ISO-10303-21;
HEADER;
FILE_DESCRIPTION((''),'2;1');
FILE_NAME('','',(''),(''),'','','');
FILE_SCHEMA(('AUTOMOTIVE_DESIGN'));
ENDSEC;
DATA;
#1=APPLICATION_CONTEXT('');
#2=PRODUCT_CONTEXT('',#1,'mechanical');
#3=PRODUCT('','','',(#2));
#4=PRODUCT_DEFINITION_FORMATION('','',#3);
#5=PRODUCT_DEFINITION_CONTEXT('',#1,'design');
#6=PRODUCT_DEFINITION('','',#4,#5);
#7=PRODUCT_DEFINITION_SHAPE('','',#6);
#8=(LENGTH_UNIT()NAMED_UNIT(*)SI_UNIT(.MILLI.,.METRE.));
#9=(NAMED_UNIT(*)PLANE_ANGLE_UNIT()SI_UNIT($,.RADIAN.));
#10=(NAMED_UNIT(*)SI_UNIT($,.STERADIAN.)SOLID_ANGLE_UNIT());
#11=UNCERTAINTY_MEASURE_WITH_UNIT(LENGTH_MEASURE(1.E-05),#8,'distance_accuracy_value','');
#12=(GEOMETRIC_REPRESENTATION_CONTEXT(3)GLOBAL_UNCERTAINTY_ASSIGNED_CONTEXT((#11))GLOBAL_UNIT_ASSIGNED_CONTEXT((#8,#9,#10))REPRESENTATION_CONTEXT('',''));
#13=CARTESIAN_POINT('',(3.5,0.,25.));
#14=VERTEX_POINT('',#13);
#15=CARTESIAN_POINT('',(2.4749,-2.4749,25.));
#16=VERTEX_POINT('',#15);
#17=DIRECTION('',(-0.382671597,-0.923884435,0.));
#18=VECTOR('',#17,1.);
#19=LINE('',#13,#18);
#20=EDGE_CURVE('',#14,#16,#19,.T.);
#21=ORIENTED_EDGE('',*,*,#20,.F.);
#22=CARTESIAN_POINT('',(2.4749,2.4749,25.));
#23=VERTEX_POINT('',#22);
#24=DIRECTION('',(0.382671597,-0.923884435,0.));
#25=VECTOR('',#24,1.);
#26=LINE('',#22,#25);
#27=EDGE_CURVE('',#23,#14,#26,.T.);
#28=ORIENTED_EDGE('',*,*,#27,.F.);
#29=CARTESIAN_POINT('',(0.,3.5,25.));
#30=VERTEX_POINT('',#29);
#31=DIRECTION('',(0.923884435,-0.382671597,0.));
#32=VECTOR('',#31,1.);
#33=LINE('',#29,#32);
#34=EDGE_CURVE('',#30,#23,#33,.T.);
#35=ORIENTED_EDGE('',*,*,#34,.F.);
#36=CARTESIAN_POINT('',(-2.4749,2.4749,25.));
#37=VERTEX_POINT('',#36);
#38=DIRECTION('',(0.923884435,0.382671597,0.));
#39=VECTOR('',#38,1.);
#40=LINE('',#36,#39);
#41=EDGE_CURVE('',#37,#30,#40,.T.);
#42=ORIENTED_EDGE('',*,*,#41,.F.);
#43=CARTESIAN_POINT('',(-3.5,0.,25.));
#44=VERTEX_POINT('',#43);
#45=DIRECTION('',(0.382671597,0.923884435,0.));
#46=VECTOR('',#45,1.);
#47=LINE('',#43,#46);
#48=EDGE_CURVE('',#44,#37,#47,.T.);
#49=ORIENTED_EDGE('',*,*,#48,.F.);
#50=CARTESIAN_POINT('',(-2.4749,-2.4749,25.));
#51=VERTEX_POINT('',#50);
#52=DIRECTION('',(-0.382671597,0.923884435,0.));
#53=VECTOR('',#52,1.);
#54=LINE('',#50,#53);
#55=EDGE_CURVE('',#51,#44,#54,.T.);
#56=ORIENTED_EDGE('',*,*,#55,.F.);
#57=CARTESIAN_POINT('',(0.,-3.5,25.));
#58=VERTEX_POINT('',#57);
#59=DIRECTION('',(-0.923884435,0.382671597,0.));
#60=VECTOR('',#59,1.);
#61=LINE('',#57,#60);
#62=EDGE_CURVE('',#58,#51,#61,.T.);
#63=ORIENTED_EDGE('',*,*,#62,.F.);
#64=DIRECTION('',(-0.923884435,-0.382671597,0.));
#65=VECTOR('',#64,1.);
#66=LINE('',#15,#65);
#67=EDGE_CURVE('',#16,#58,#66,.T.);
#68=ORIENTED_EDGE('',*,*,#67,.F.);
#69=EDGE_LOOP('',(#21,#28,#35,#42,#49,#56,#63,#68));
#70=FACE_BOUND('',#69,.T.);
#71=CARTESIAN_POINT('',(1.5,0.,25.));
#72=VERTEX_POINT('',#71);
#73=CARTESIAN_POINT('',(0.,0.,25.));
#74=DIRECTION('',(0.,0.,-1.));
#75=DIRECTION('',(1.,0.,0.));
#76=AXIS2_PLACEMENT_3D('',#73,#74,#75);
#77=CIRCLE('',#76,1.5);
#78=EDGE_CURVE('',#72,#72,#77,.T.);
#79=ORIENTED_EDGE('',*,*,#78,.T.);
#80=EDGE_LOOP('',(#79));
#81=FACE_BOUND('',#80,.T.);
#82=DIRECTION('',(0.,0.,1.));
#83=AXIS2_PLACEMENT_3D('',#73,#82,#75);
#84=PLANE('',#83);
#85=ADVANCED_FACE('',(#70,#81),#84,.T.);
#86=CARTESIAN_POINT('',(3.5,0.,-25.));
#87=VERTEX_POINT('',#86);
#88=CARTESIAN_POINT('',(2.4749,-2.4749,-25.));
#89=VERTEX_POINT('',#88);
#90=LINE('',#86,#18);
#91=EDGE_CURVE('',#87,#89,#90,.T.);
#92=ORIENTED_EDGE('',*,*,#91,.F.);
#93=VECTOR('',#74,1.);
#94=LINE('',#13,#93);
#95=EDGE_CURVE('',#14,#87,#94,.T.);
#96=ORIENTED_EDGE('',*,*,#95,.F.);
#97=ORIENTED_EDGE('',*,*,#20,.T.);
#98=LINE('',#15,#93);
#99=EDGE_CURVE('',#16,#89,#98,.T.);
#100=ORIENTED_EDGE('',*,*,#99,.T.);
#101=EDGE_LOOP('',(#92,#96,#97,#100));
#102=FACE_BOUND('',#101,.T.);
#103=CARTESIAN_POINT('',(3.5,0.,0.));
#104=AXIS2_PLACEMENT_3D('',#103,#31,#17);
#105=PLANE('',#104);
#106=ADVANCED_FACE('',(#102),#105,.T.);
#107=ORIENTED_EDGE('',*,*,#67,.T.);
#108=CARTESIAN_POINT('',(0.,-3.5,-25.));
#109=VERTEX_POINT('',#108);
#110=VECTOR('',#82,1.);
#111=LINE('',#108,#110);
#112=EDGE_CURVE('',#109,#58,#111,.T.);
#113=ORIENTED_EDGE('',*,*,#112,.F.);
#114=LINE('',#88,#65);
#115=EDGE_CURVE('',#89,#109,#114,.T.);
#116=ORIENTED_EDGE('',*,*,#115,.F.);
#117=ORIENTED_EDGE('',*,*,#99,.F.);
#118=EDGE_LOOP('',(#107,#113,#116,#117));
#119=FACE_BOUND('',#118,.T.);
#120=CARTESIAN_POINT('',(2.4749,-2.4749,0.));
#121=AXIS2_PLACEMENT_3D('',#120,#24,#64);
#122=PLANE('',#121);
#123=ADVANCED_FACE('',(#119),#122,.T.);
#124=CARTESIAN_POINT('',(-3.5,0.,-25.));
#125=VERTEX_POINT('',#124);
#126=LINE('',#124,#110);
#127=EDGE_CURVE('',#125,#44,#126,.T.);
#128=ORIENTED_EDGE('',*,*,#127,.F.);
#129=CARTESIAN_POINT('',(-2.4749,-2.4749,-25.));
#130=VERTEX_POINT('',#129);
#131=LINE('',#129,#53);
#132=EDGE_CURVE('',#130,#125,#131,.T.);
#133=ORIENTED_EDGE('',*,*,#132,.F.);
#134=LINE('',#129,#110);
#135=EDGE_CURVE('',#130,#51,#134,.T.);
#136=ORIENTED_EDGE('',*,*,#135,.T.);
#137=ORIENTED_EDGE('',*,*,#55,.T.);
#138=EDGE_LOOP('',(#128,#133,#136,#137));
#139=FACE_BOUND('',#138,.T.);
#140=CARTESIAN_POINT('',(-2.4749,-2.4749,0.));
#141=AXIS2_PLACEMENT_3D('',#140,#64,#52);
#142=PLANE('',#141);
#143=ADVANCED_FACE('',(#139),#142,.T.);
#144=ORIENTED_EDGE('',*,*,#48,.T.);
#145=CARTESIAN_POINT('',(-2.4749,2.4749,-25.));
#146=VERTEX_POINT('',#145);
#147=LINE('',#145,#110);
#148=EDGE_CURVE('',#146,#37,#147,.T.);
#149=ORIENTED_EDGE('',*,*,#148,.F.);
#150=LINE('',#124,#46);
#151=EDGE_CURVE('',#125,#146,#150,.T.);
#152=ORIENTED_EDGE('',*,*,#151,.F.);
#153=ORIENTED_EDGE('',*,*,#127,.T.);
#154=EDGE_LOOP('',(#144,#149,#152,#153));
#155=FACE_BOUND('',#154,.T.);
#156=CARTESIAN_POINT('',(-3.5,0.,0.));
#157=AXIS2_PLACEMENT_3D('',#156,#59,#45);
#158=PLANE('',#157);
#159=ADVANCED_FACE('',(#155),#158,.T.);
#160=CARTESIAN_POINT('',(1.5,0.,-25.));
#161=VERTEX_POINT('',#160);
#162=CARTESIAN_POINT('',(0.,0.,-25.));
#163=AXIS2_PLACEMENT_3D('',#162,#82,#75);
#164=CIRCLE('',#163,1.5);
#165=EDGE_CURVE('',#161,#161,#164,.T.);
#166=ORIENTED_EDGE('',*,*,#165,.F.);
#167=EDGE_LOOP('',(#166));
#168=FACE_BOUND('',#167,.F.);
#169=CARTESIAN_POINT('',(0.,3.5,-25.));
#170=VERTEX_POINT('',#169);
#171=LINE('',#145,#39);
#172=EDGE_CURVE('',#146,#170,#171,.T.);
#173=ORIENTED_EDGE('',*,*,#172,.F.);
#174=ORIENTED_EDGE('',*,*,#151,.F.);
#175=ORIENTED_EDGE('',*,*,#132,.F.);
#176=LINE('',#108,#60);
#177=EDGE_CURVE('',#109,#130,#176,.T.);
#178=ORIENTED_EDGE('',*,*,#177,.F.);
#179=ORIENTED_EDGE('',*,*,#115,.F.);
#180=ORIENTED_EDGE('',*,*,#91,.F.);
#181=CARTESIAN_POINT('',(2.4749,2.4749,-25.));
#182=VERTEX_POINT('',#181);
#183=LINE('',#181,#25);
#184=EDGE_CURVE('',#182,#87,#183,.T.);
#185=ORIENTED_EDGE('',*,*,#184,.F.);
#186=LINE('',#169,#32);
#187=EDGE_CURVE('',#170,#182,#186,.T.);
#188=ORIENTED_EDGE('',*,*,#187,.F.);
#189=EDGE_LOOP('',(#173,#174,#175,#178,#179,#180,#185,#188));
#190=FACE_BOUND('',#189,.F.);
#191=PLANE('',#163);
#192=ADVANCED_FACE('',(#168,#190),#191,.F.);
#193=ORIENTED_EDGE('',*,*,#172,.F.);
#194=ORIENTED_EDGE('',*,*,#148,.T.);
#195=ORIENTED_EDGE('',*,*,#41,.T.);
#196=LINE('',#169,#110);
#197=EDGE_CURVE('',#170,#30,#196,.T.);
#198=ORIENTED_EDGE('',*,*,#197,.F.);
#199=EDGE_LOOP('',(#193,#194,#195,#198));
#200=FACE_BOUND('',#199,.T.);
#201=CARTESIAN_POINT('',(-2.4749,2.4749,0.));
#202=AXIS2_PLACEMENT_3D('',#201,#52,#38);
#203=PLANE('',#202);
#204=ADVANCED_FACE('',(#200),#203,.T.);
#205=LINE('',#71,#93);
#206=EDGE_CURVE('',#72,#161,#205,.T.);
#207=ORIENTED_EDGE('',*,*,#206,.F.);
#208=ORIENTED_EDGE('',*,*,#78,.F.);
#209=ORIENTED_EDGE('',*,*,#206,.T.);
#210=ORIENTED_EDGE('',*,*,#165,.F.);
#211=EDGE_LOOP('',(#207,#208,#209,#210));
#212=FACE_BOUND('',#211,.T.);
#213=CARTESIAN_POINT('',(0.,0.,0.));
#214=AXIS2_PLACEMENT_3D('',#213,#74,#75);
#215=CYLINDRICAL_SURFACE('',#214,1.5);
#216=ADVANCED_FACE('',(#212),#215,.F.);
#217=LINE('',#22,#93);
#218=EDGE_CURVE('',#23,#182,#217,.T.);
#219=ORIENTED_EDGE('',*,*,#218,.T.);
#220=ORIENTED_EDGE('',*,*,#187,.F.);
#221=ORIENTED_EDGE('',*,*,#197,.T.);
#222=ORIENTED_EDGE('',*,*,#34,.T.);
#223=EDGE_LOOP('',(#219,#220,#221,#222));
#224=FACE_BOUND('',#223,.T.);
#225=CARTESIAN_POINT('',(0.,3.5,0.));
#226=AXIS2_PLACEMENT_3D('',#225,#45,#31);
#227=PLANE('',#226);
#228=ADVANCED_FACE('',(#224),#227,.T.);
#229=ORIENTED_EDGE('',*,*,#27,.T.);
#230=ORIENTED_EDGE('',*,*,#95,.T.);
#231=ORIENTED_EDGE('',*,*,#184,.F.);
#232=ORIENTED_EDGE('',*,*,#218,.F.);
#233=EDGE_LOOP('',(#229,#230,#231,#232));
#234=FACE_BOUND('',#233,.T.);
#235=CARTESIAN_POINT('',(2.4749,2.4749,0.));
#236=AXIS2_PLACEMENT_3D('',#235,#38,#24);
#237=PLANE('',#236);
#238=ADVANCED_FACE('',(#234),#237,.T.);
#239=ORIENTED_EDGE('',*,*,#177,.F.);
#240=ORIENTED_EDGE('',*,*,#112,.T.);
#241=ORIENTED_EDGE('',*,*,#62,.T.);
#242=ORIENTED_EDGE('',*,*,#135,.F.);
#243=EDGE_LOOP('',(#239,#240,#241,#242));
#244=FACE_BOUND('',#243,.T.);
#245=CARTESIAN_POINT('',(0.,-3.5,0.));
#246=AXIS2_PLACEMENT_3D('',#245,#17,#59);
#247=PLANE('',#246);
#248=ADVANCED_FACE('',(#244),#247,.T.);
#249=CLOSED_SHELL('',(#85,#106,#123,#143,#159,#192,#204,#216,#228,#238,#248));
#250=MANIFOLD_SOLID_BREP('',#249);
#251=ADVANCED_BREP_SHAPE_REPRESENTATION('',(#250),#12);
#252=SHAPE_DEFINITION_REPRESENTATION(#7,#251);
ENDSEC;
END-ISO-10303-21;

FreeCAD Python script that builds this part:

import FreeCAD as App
import Part
import Sketcher

V = App.Vector
Q = App.Units.Quantity


def add_polygon(sketch, points):
    """Adds a closed chain of lines whose ends are joined by coincident constraints."""
    first, n = sketch.GeometryCount, len(points)
    for a, b in zip(points, points[1:] + points[:1]):
        sketch.addGeometry(Part.LineSegment(App.Vector(*a, 0), App.Vector(*b, 0)), False)
    for i in range(n):
        sketch.addConstraint(Sketcher.Constraint("Coincident", first + i, 2, first + (i + 1) % n, 1))

doc = App.newDocument("Part")
body = doc.addObject("PartDesign::Body", "Body")

# Sketch on XY plane
sketch1 = doc.addObject("Sketcher::SketchObject", "Sketch")
body.addObject(sketch1)
sketch1.AttachmentSupport = (doc.XY_Plane, [""])
sketch1.MapMode = "FlatFace"
add_polygon(sketch1, [(2.5, 2.5), (0, 3.5), (-2.5, 2.5), (-3.5, 0), (-2.5, -2.5), (0, -3.5), (2.5, -2.5), (3.5, 0)])  # lines 0-7
sketch1.addGeometry(Part.Circle(V(0, 0, 0), V(0, 0, 1), 1.5), False)  # 8
sketch1.addConstraint(Sketcher.Constraint("Coincident", 8, 3, -1, 1))
sketch1.addConstraint(Sketcher.Constraint("Symmetric", 0, 2, 4, 2, -1, 1))
sketch1.addConstraint(Sketcher.Constraint("Symmetric", 1, 2, 5, 2, -1, 1))
sketch1.addConstraint(Sketcher.Constraint("Symmetric", 2, 2, 6, 2, -1, 1))
sketch1.addConstraint(Sketcher.Constraint("Symmetric", 3, 2, 7, 2, -1, 1))
sketch1.addConstraint(Sketcher.Constraint("Symmetric", 3, 2, 5, 2, -2))
sketch1.addConstraint(Sketcher.Constraint("PointOnObject", 0, 2, -2))
sketch1.addConstraint(Sketcher.Constraint("PointOnObject", 2, 2, -1))
sketch1.addConstraint(Sketcher.Constraint("Perpendicular", 0, 2))
sketch1.addConstraint(Sketcher.Constraint("Equal", 1, 2))
sketch1.addConstraint(Sketcher.Constraint("Diameter", 8, 3.0))
sketch1.addConstraint(Sketcher.Constraint("Angle", 0, Q("157.5007 deg")))
sketch1.addConstraint(Sketcher.Constraint("DistanceY", 4, 2, 0, 2, 7.0))
pad1 = doc.addObject("PartDesign::Pad", "Pad")
body.addObject(pad1)
pad1.Profile = sketch1
pad1.Length = 50
pad1.Midplane = True

doc.recompute()
